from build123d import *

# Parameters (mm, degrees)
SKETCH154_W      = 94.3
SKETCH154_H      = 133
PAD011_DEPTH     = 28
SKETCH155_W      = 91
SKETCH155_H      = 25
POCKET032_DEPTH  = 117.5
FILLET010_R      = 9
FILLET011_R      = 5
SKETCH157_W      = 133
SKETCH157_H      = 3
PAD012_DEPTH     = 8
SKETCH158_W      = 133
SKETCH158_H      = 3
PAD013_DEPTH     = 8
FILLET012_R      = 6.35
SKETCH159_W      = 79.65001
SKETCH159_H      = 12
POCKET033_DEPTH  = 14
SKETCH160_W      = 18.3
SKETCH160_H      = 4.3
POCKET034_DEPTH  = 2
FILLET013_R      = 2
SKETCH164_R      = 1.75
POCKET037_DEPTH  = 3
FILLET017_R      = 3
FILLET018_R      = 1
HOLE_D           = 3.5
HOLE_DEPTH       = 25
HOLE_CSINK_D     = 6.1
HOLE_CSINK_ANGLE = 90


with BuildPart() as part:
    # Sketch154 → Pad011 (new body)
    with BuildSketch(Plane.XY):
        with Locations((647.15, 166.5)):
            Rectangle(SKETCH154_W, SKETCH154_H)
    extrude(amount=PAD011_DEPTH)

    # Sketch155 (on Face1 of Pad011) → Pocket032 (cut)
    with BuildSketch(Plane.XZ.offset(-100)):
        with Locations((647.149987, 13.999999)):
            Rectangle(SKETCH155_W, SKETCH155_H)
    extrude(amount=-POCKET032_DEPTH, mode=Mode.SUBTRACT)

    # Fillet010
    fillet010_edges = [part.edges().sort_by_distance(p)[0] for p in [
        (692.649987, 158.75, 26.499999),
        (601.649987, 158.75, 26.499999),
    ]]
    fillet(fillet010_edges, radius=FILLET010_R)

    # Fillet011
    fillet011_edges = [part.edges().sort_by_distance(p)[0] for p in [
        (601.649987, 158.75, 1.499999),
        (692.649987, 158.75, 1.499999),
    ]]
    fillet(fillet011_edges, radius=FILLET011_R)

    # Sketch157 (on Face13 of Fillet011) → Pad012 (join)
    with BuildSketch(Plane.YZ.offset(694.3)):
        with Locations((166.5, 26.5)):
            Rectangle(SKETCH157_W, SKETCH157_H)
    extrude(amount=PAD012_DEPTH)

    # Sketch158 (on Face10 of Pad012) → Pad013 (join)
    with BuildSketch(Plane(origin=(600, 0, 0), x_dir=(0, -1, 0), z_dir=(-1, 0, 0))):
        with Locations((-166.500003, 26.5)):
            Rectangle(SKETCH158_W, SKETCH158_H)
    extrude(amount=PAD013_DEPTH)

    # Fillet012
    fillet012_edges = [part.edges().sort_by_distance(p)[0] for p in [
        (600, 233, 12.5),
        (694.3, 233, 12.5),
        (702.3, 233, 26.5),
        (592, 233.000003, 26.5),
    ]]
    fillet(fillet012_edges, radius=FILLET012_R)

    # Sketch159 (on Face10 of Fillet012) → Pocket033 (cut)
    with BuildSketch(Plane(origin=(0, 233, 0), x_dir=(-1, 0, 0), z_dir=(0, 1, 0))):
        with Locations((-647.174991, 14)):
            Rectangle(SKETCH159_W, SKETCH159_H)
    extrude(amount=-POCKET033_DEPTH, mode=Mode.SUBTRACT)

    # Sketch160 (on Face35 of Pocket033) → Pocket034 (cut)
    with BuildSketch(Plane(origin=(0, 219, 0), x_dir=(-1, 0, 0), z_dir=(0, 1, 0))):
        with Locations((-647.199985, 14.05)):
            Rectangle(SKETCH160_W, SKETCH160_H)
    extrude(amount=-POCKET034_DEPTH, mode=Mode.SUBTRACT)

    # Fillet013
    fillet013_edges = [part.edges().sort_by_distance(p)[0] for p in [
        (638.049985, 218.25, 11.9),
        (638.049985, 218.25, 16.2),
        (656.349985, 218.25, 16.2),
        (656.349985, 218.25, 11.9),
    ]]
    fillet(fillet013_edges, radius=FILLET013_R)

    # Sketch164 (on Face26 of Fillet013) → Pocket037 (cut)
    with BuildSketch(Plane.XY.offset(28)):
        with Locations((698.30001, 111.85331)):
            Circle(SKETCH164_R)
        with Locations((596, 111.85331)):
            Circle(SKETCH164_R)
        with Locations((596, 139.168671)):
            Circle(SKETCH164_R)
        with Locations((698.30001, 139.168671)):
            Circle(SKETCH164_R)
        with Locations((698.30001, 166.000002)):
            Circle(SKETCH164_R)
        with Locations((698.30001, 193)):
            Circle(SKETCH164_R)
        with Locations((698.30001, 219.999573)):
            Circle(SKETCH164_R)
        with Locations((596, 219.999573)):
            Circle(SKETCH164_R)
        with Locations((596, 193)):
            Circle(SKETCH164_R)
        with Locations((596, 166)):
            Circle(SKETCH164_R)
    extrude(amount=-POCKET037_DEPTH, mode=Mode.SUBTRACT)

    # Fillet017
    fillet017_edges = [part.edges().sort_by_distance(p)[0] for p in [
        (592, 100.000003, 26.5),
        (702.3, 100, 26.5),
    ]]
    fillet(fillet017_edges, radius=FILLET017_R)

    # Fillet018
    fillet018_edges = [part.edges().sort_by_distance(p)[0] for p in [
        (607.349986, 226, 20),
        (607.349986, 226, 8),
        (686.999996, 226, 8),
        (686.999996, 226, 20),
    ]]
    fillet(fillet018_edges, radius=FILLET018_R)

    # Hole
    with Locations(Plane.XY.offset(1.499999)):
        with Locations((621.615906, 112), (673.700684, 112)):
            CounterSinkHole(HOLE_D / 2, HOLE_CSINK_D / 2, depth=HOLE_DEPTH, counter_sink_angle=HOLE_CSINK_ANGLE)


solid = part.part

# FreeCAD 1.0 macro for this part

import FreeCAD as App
import Part
import Sketcher
from FreeCAD import Vector
Q = App.Units.Quantity


def edges_at(feature, points):
    """Names of the edges that pass closest to the given points."""
    edges = feature.Shape.Edges
    near = lambda p: min(range(len(edges)), key=lambda i: edges[i].distToShape(Part.Vertex(*p))[0])
    return sorted({f"Edge{near(p) + 1}" for p in points})


def add_polygon(sketch, points):
    """Adds a closed chain of lines whose ends are joined by coincident constraints."""
    first, n = sketch.GeometryCount, len(points)
    for a, b in zip(points, points[1:] + points[:1]):
        sketch.addGeometry(Part.LineSegment(App.Vector(*a, 0), App.Vector(*b, 0)), False)
    for i in range(n):
        sketch.addConstraint(Sketcher.Constraint("Coincident", first + i, 2, first + (i + 1) % n, 1))

doc = App.newDocument("Part")
params = doc.addObject("Spreadsheet::Sheet", "Params")
for row, (alias, value) in enumerate([
    ("sketch1_height", "133 mm"),
    ("sketch1_width", "94.3 mm"),
    ("pad1_length", "28 mm"),
    ("sketch2_width", "91 mm"),
    ("sketch2_height", "25 mm"),
    ("pocket1_length", "117.5 mm"),
    ("fillet_radius", "9 mm"),
    ("fillet2_radius", "5 mm"),
    ("sketch3_width", "133 mm"),
    ("sketch3_height", "3 mm"),
    ("pad2_length", "8 mm"),
    ("sketch4_width", "133 mm"),
    ("sketch4_height", "3 mm"),
    ("pad3_length", "8 mm"),
    ("fillet3_radius", "6.35 mm"),
    ("sketch5_height", "12 mm"),
    ("pocket2_length", "14 mm"),
    ("sketch6_width", "18.3 mm"),
    ("sketch6_height", "4.3 mm"),
    ("pocket3_length", "2 mm"),
    ("fillet4_radius", "2 mm"),
    ("sketch7_diameter", "3.5 mm"),
    ("pocket4_length", "3 mm"),
    ("fillet5_radius", "3 mm"),
    ("fillet6_radius", "1 mm"),
    ("sketch8_diameter", "3.5 mm"),
    ("hole_diameter", "3.5 mm"),
    ("hole_depth", "25 mm"),
    ("hole_csink_diameter", "6.1 mm"),
], start=1):
    params.set(f"A{row}", alias)
    params.set(f"B{row}", "=" + value)
    params.setAlias(f"B{row}", alias)

body = doc.addObject("PartDesign::Body", "Body")

sketch1 = body.newObject("Sketcher::SketchObject", "Sketch")
sketch1.AttachmentSupport = (doc.getObject("XY_Plane"), [""])
sketch1.MapMode = "FlatFace"
add_polygon(sketch1, [(600, 233), (600, 100), (694.3, 100), (694.3, 233)])
sketch1.addConstraint([
    Sketcher.Constraint("Vertical", 0),
    Sketcher.Constraint("Horizontal", 1),
    Sketcher.Constraint("Vertical", 2),
    Sketcher.Constraint("Horizontal", 3),
    Sketcher.Constraint("DistanceY", 0, 2, 0, 1, Q("133 mm")),
    Sketcher.Constraint("DistanceX", 1, 1, 1, 2, Q("94.3 mm")),
    Sketcher.Constraint("DistanceX", -1, 1, 0, 2, Q("600 mm")),
    Sketcher.Constraint("DistanceY", -1, 1, 0, 2, Q("100 mm")),
])
sketch1.setExpression("Constraints[8]", "Params.sketch1_height")
sketch1.setExpression("Constraints[9]", "Params.sketch1_width")
pad1 = body.newObject("PartDesign::Pad", "Pad")
pad1.Profile = sketch1
pad1.setExpression("Length", "Params.pad1_length")

sketch2 = body.newObject("Sketcher::SketchObject", "Sketch001")
sketch2.AttachmentSupport = (doc.getObject("XZ_Plane"), [""])
sketch2.MapMode = "FlatFace"
sketch2.AttachmentOffset = App.Placement(Vector(0, 0, -100), App.Rotation())
add_polygon(sketch2, [(601.649987, 26.499999), (601.649987, 1.499999), (692.649987, 1.499999), (692.649987, 26.499999)])
sketch2.addConstraint([
    Sketcher.Constraint("Vertical", 0),
    Sketcher.Constraint("Horizontal", 1),
    Sketcher.Constraint("Vertical", 2),
    Sketcher.Constraint("Horizontal", 3),
    Sketcher.Constraint("DistanceX", 1, 1, 1, 2, Q("91 mm")),
    Sketcher.Constraint("DistanceY", 0, 2, 0, 1, Q("25 mm")),
    Sketcher.Constraint("DistanceY", -1, 1, 0, 2, Q("1.499999 mm")),
    Sketcher.Constraint("DistanceX", -1, 1, 0, 2, Q("601.649987 mm")),
])
sketch2.setExpression("Constraints[8]", "Params.sketch2_width")
sketch2.setExpression("Constraints[9]", "Params.sketch2_height")
pocket1 = body.newObject("PartDesign::Pocket", "Pocket")
pocket1.Profile = sketch2
pocket1.setExpression("Length", "Params.pocket1_length")
doc.recompute()

fillet = body.newObject("PartDesign::Fillet", "Fillet")
fillet.Base = (pocket1, edges_at(pocket1, [(692.65, 158.75, 26.5), (601.65, 158.75, 26.5)]))
fillet.setExpression("Radius", "Params.fillet_radius")
doc.recompute()

fillet2 = body.newObject("PartDesign::Fillet", "Fillet001")
fillet2.Base = (fillet, edges_at(fillet, [(601.65, 158.75, 1.5), (692.65, 158.75, 1.5)]))
fillet2.setExpression("Radius", "Params.fillet2_radius")

sketch3 = body.newObject("Sketcher::SketchObject", "Sketch002")
sketch3.AttachmentSupport = (doc.getObject("YZ_Plane"), [""])
sketch3.MapMode = "FlatFace"
sketch3.AttachmentOffset = App.Placement(Vector(0, 0, 694.3), App.Rotation())
add_polygon(sketch3, [(100, 28), (100, 25), (233, 25), (233, 28)])
sketch3.addConstraint([
    Sketcher.Constraint("Vertical", 0),
    Sketcher.Constraint("Horizontal", 1),
    Sketcher.Constraint("Vertical", 2),
    Sketcher.Constraint("Horizontal", 3),
    Sketcher.Constraint("DistanceX", 1, 1, 1, 2, Q("133 mm")),
    Sketcher.Constraint("DistanceY", 0, 2, 0, 1, Q("3 mm")),
    Sketcher.Constraint("DistanceX", -1, 1, 0, 2, Q("100 mm")),
    Sketcher.Constraint("DistanceY", -1, 1, 0, 2, Q("25 mm")),
])
sketch3.setExpression("Constraints[8]", "Params.sketch3_width")
sketch3.setExpression("Constraints[9]", "Params.sketch3_height")
pad2 = body.newObject("PartDesign::Pad", "Pad001")
pad2.Profile = sketch3
pad2.setExpression("Length", "Params.pad2_length")

sketch4 = body.newObject("Sketcher::SketchObject", "Sketch003")
sketch4.AttachmentSupport = (doc.getObject("YZ_Plane"), [""])
sketch4.MapMode = "FlatFace"
sketch4.AttachmentOffset = App.Placement(Vector(0, 0, 600), App.Rotation())
add_polygon(sketch4, [(233.000003, 28), (233.000003, 25), (100.000003, 25), (100.000003, 28)])
sketch4.addConstraint([
    Sketcher.Constraint("Vertical", 0),
    Sketcher.Constraint("Horizontal", 1),
    Sketcher.Constraint("Vertical", 2),
    Sketcher.Constraint("Horizontal", 3),
    Sketcher.Constraint("DistanceX", 1, 2, 1, 1, Q("133 mm")),
    Sketcher.Constraint("DistanceY", 0, 2, 0, 1, Q("3 mm")),
    Sketcher.Constraint("DistanceY", -1, 1, 0, 2, Q("25 mm")),
    Sketcher.Constraint("DistanceX", -1, 1, 0, 2, Q("233.000003 mm")),
])
sketch4.setExpression("Constraints[8]", "Params.sketch4_width")
sketch4.setExpression("Constraints[9]", "Params.sketch4_height")
pad3 = body.newObject("PartDesign::Pad", "Pad002")
pad3.Profile = sketch4
pad3.setExpression("Length", "Params.pad3_length")
pad3.Reversed = True
doc.recompute()

fillet3 = body.newObject("PartDesign::Fillet", "Fillet002")
fillet3.Base = (pad3, edges_at(pad3, [
    (600, 233, 12.5),
    (694.3, 233, 12.5),
    (702.3, 233, 26.5),
    (592, 233, 26.5),
]))
fillet3.setExpression("Radius", "Params.fillet3_radius")

sketch5 = body.newObject("Sketcher::SketchObject", "Sketch004")
sketch5.AttachmentSupport = (doc.getObject("XZ_Plane"), [""])
sketch5.MapMode = "FlatFace"
sketch5.AttachmentOffset = App.Placement(Vector(0, 0, -233), App.Rotation())
add_polygon(sketch5, [(686.999996, 20), (686.999996, 8), (607.349986, 8), (607.349986, 20)])
sketch5.addConstraint([
    Sketcher.Constraint("Vertical", 0),
    Sketcher.Constraint("Horizontal", 1),
    Sketcher.Constraint("Vertical", 2),
    Sketcher.Constraint("Horizontal", 3),
    Sketcher.Constraint("DistanceY", 0, 2, 0, 1, Q("12 mm")),
    Sketcher.Constraint("DistanceY", -1, 1, 0, 2, Q("8 mm")),
    Sketcher.Constraint("DistanceX", 1, 2, 1, 1, Q("79.65001 mm")),
    Sketcher.Constraint("DistanceX", -1, 1, 0, 2, Q("686.999996 mm")),
])
sketch5.setExpression("Constraints[8]", "Params.sketch5_height")
pocket2 = body.newObject("PartDesign::Pocket", "Pocket001")
pocket2.Profile = sketch5
pocket2.setExpression("Length", "Params.pocket2_length")
pocket2.Reversed = True

sketch6 = body.newObject("Sketcher::SketchObject", "Sketch005")
sketch6.AttachmentSupport = (doc.getObject("XZ_Plane"), [""])
sketch6.MapMode = "FlatFace"
sketch6.AttachmentOffset = App.Placement(Vector(0, 0, -219), App.Rotation())
add_polygon(sketch6, [(656.349985, 16.2), (656.349985, 11.9), (638.049985, 11.9), (638.049985, 16.2)])
sketch6.addConstraint([
    Sketcher.Constraint("Vertical", 0),
    Sketcher.Constraint("Horizontal", 1),
    Sketcher.Constraint("Vertical", 2),
    Sketcher.Constraint("Horizontal", 3),
    Sketcher.Constraint("DistanceX", 1, 2, 1, 1, Q("18.3 mm")),
    Sketcher.Constraint("DistanceY", 0, 2, 0, 1, Q("4.3 mm")),
    Sketcher.Constraint("DistanceY", -1, 1, 0, 2, Q("11.9 mm")),
    Sketcher.Constraint("DistanceX", -1, 1, 0, 2, Q("656.349985 mm")),
])
sketch6.setExpression("Constraints[8]", "Params.sketch6_width")
sketch6.setExpression("Constraints[9]", "Params.sketch6_height")
pocket3 = body.newObject("PartDesign::Pocket", "Pocket002")
pocket3.Profile = sketch6
pocket3.setExpression("Length", "Params.pocket3_length")
pocket3.Reversed = True
doc.recompute()

fillet4 = body.newObject("PartDesign::Fillet", "Fillet003")
fillet4.Base = (pocket3, edges_at(pocket3, [
    (638.05, 218.25, 11.9),
    (638.05, 218.25, 16.2),
    (656.35, 218.25, 16.2),
    (656.35, 218.25, 11.9),
]))
fillet4.setExpression("Radius", "Params.fillet4_radius")

sketch7 = body.newObject("Sketcher::SketchObject", "Sketch006")
sketch7.AttachmentSupport = (doc.getObject("XY_Plane"), [""])
sketch7.MapMode = "FlatFace"
sketch7.AttachmentOffset = App.Placement(Vector(0, 0, 28), App.Rotation())
sketch7.addGeometry([
    Part.Circle(Vector(698.30001, 111.85331, 0), Vector(0, 0, 1), 1.75),
    Part.Circle(Vector(596, 111.85331, 0), Vector(0, 0, 1), 1.75),
    Part.Circle(Vector(596, 139.168671, 0), Vector(0, 0, 1), 1.75),
    Part.Circle(Vector(698.30001, 139.168671, 0), Vector(0, 0, 1), 1.75),
    Part.Circle(Vector(698.30001, 166.000002, 0), Vector(0, 0, 1), 1.75),
    Part.Circle(Vector(698.30001, 193, 0), Vector(0, 0, 1), 1.75),
    Part.Circle(Vector(698.30001, 219.999573, 0), Vector(0, 0, 1), 1.75),
    Part.Circle(Vector(596, 219.999573, 0), Vector(0, 0, 1), 1.75),
    Part.Circle(Vector(596, 193, 0), Vector(0, 0, 1), 1.75),
    Part.Circle(Vector(596, 166, 0), Vector(0, 0, 1), 1.75),
], False)
sketch7.addConstraint([
    Sketcher.Constraint("Equal", 0, 1),
    Sketcher.Constraint("Equal", 1, 2),
    Sketcher.Constraint("Equal", 2, 3),
    Sketcher.Constraint("Equal", 3, 4),
    Sketcher.Constraint("Equal", 4, 5),
    Sketcher.Constraint("Equal", 5, 6),
    Sketcher.Constraint("Equal", 6, 7),
    Sketcher.Constraint("Equal", 7, 8),
    Sketcher.Constraint("Equal", 8, 9),
    Sketcher.Constraint("Horizontal", 0, 3, 1, 3),
    Sketcher.Constraint("Horizontal", 2, 3, 3, 3),
    Sketcher.Constraint("Horizontal", 6, 3, 7, 3),
    Sketcher.Constraint("Horizontal", 5, 3, 8, 3),
    Sketcher.Constraint("Horizontal", 4, 3, 9, 3),
    Sketcher.Constraint("Vertical", 1, 3, 2, 3),
    Sketcher.Constraint("Vertical", 0, 3, 3, 3),
    Sketcher.Constraint("Vertical", 3, 3, 4, 3),
    Sketcher.Constraint("Vertical", 4, 3, 5, 3),
    Sketcher.Constraint("Vertical", 5, 3, 6, 3),
    Sketcher.Constraint("Vertical", 2, 3, 7, 3),
    Sketcher.Constraint("Vertical", 7, 3, 8, 3),
    Sketcher.Constraint("Vertical", 8, 3, 9, 3),
    Sketcher.Constraint("Diameter", 0, Q("3.5 mm")),
    Sketcher.Constraint("DistanceX", -1, 1, 1, 3, Q("596 mm")),
    Sketcher.Constraint("DistanceY", -1, 1, 4, 3, Q("166.000002 mm")),
    Sketcher.Constraint("DistanceY", -1, 1, 5, 3, Q("193 mm")),
    Sketcher.Constraint("DistanceX", -1, 1, 0, 3, Q("698.30001 mm")),
    Sketcher.Constraint("DistanceY", -1, 1, 0, 3, Q("111.85331 mm")),
    Sketcher.Constraint("DistanceY", -1, 1, 2, 3, Q("139.168671 mm")),
    Sketcher.Constraint("DistanceY", 4, 3, 6, 3, Q("53.999571 mm")),
])
sketch7.setExpression("Constraints[22]", "Params.sketch7_diameter")
pocket4 = body.newObject("PartDesign::Pocket", "Pocket003")
pocket4.Profile = sketch7
pocket4.setExpression("Length", "Params.pocket4_length")
doc.recompute()

fillet5 = body.newObject("PartDesign::Fillet", "Fillet004")
fillet5.Base = (pocket4, edges_at(pocket4, [(592, 100, 26.5), (702.3, 100, 26.5)]))
fillet5.setExpression("Radius", "Params.fillet5_radius")
doc.recompute()

fillet6 = body.newObject("PartDesign::Fillet", "Fillet005")
fillet6.Base = (fillet5, edges_at(fillet5, [
    (607.35, 226, 20),
    (607.35, 226, 8),
    (687, 226, 8),
    (687, 226, 20),
]))
fillet6.setExpression("Radius", "Params.fillet6_radius")

sketch8 = body.newObject("Sketcher::SketchObject", "Sketch007")
sketch8.AttachmentSupport = (doc.getObject("XY_Plane"), [""])
sketch8.MapMode = "FlatFace"
sketch8.AttachmentOffset = App.Placement(Vector(0, 0, 1.499999), App.Rotation())
sketch8.addGeometry([
    Part.Circle(Vector(621.615906, 112, 0), Vector(0, 0, 1), 1.75),
    Part.Circle(Vector(673.700684, 112, 0), Vector(0, 0, 1), 1.75),
], False)
sketch8.addConstraint([
    Sketcher.Constraint("Equal", 0, 1),
    Sketcher.Constraint("Horizontal", 0, 3, 1, 3),
    Sketcher.Constraint("Diameter", 0, Q("3.5 mm")),
    Sketcher.Constraint("DistanceY", -1, 1, 0, 3, Q("112 mm")),
    Sketcher.Constraint("DistanceX", 0, 3, 1, 3, Q("52.084778 mm")),
    Sketcher.Constraint("DistanceX", -1, 1, 0, 3, Q("621.615906 mm")),
])
sketch8.setExpression("Constraints[2]", "Params.sketch8_diameter")
doc.recompute()
hole = body.newObject("PartDesign::Hole", "Hole")
hole.Profile = sketch8
hole.ThreadType = "None"
hole.setExpression("Diameter", "Params.hole_diameter")
hole.DepthType = "Dimension"
hole.setExpression("Depth", "Params.hole_depth")
hole.DrillPoint = "Flat"
hole.HoleCutType = "Countersink"
hole.setExpression("HoleCutDiameter", "Params.hole_csink_diameter")
hole.HoleCutCountersinkAngle = 90

doc.recompute()
